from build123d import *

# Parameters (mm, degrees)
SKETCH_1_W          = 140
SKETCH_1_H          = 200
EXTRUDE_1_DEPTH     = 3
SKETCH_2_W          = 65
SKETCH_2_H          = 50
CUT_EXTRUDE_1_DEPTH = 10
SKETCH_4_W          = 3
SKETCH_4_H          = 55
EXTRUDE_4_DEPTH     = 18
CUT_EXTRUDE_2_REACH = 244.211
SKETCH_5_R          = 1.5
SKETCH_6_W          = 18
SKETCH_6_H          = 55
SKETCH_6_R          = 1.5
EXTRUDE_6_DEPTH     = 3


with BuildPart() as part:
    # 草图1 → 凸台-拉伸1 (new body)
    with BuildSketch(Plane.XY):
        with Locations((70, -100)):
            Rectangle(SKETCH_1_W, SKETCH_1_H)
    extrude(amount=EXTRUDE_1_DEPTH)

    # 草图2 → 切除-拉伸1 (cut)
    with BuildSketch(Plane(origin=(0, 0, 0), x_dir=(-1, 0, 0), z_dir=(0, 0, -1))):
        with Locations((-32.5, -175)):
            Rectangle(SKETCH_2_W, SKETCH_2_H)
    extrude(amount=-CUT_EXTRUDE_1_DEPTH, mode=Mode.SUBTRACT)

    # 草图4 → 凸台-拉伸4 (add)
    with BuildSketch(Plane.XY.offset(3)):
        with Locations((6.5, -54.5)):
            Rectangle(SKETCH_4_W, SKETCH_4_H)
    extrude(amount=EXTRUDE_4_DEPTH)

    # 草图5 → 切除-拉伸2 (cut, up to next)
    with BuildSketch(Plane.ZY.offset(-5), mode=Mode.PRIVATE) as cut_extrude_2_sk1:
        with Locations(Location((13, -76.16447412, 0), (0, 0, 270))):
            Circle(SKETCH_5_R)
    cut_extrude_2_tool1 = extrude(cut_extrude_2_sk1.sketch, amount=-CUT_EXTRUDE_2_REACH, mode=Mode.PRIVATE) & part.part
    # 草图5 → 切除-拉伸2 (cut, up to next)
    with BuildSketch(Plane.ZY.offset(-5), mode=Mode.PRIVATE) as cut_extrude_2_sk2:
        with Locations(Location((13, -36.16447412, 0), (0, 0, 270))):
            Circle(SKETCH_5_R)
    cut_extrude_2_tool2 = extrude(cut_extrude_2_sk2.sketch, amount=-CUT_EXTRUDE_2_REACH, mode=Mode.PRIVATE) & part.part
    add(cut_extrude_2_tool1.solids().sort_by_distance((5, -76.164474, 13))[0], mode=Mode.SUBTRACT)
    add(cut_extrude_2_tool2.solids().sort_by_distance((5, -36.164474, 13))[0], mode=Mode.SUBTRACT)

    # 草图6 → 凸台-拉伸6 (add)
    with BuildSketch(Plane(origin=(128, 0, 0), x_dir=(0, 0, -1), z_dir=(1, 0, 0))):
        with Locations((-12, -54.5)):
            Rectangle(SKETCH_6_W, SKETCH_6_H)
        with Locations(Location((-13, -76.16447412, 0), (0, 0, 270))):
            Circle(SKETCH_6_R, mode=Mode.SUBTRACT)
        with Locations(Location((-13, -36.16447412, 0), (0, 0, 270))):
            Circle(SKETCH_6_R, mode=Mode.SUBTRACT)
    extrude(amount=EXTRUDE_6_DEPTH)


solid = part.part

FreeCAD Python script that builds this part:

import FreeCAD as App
import Part
import Sketcher
from FreeCAD import Vector

doc = App.newDocument("Part")
body = doc.addObject("PartDesign::Body", "Body")

# Sketch on XY plane
sketch1 = body.newObject("Sketcher::SketchObject", "Sketch")
sketch1.AttachmentSupport = (doc.getObject("XY_Plane"), [""])
sketch1.MapMode = "FlatFace"
sketch1.addGeometry(Part.LineSegment(Vector(0, 0, 0), Vector(0, -200, 0)), False)
sketch1.addGeometry(Part.LineSegment(Vector(0, -200, 0), Vector(140, -200, 0)), False)
sketch1.addGeometry(Part.LineSegment(Vector(140, -200, 0), Vector(140, 0, 0)), False)
sketch1.addGeometry(Part.LineSegment(Vector(140, 0, 0), Vector(0, 0, 0)), False)
sketch1.addConstraint(Sketcher.Constraint("Coincident", 0, 2, 1, 1))
sketch1.addConstraint(Sketcher.Constraint("Coincident", 1, 2, 2, 1))
sketch1.addConstraint(Sketcher.Constraint("Coincident", 2, 2, 3, 1))
sketch1.addConstraint(Sketcher.Constraint("Coincident", 3, 2, 0, 1))
sketch1.addConstraint(Sketcher.Constraint("Vertical", 0))
sketch1.addConstraint(Sketcher.Constraint("Horizontal", 1))
sketch1.addConstraint(Sketcher.Constraint("Vertical", 2))
sketch1.addConstraint(Sketcher.Constraint("Horizontal", 3))
sketch1.addConstraint(Sketcher.Constraint("Coincident", 3, 2, -1, 1))
sketch1.addConstraint(Sketcher.Constraint("DistanceX", 1, 1, 1, 2, 140.0))
sketch1.addConstraint(Sketcher.Constraint("DistanceY", 0, 2, 0, 1, 200.0))
pad1 = body.newObject("PartDesign::Pad", "Pad")
pad1.Profile = sketch1
pad1.Length = 3

# Sketch on XY plane
sketch2 = body.newObject("Sketcher::SketchObject", "Sketch001")
sketch2.AttachmentSupport = (doc.getObject("XY_Plane"), [""])
sketch2.MapMode = "FlatFace"
sketch2.addGeometry(Part.LineSegment(Vector(65, -150, 0), Vector(65, -200, 0)), False)
sketch2.addGeometry(Part.LineSegment(Vector(65, -200, 0), Vector(0, -200, 0)), False)
sketch2.addGeometry(Part.LineSegment(Vector(0, -200, 0), Vector(0, -150, 0)), False)
sketch2.addGeometry(Part.LineSegment(Vector(0, -150, 0), Vector(65, -150, 0)), False)
sketch2.addConstraint(Sketcher.Constraint("Coincident", 0, 2, 1, 1))
sketch2.addConstraint(Sketcher.Constraint("Coincident", 1, 2, 2, 1))
sketch2.addConstraint(Sketcher.Constraint("Coincident", 2, 2, 3, 1))
sketch2.addConstraint(Sketcher.Constraint("Coincident", 3, 2, 0, 1))
sketch2.addConstraint(Sketcher.Constraint("Vertical", 0))
sketch2.addConstraint(Sketcher.Constraint("Horizontal", 1))
sketch2.addConstraint(Sketcher.Constraint("Vertical", 2))
sketch2.addConstraint(Sketcher.Constraint("Horizontal", 3))
sketch2.addConstraint(Sketcher.Constraint("PointOnObject", 1, 2, -2))
sketch2.addConstraint(Sketcher.Constraint("DistanceX", 1, 2, 1, 1, 65.0))
sketch2.addConstraint(Sketcher.Constraint("DistanceY", 0, 2, 0, 1, 50.0))
sketch2.addConstraint(Sketcher.Constraint("DistanceY", 0, 2, -1, 1, 200.0))
pocket1 = body.newObject("PartDesign::Pocket", "Pocket")
pocket1.Profile = sketch2
pocket1.Length = 10
pocket1.Reversed = True

# Sketch on XY plane
sketch3 = body.newObject("Sketcher::SketchObject", "Sketch002")
sketch3.AttachmentSupport = (doc.getObject("XY_Plane"), [""])
sketch3.MapMode = "FlatFace"
sketch3.AttachmentOffset = App.Placement(Vector(0, 0, 3), App.Rotation())
sketch3.addGeometry(Part.LineSegment(Vector(5, -27, 0), Vector(5, -82, 0)), False)
sketch3.addGeometry(Part.LineSegment(Vector(5, -82, 0), Vector(8, -82, 0)), False)
sketch3.addGeometry(Part.LineSegment(Vector(8, -82, 0), Vector(8, -27, 0)), False)
sketch3.addGeometry(Part.LineSegment(Vector(8, -27, 0), Vector(5, -27, 0)), False)
sketch3.addConstraint(Sketcher.Constraint("Coincident", 0, 2, 1, 1))
sketch3.addConstraint(Sketcher.Constraint("Coincident", 1, 2, 2, 1))
sketch3.addConstraint(Sketcher.Constraint("Coincident", 2, 2, 3, 1))
sketch3.addConstraint(Sketcher.Constraint("Coincident", 3, 2, 0, 1))
sketch3.addConstraint(Sketcher.Constraint("Vertical", 0))
sketch3.addConstraint(Sketcher.Constraint("Horizontal", 1))
sketch3.addConstraint(Sketcher.Constraint("Vertical", 2))
sketch3.addConstraint(Sketcher.Constraint("Horizontal", 3))
sketch3.addConstraint(Sketcher.Constraint("DistanceX", 1, 1, 1, 2, 3.0))
sketch3.addConstraint(Sketcher.Constraint("DistanceY", 0, 2, 0, 1, 55.0))
sketch3.addConstraint(Sketcher.Constraint("DistanceX", -1, 1, 0, 2, 5.0))
sketch3.addConstraint(Sketcher.Constraint("DistanceY", 0, 2, -1, 1, 82.0))
pad2 = body.newObject("PartDesign::Pad", "Pad001")
pad2.Profile = sketch3
pad2.Length = 18

# Sketch on YZ plane
sketch4 = body.newObject("Sketcher::SketchObject", "Sketch003")
sketch4.AttachmentSupport = (doc.getObject("YZ_Plane"), [""])
sketch4.MapMode = "FlatFace"
sketch4.AttachmentOffset = App.Placement(Vector(0, 0, 5), App.Rotation())
sketch4.addGeometry(Part.Circle(Vector(-76.2, 13, 0), Vector(0, 0, 1), 1.5), False)
sketch4.addConstraint(Sketcher.Constraint("Diameter", 0, 3.0))
sketch4.addConstraint(Sketcher.Constraint("DistanceY", -1, 1, 0, 3, 13.0))
sketch4.addConstraint(Sketcher.Constraint("DistanceX", 0, 3, -1, 1, 76.164474))
pocket2 = body.newObject("PartDesign::Pocket", "Pocket001")
pocket2.Profile = sketch4
pocket2.Type = "UpToFirst"
pocket2.Reversed = True

# Sketch on YZ plane
sketch5 = body.newObject("Sketcher::SketchObject", "Sketch004")
sketch5.AttachmentSupport = (doc.getObject("YZ_Plane"), [""])
sketch5.MapMode = "FlatFace"
sketch5.AttachmentOffset = App.Placement(Vector(0, 0, 5), App.Rotation())
sketch5.addGeometry(Part.Circle(Vector(-36.2, 13, 0), Vector(0, 0, 1), 1.5), False)
sketch5.addConstraint(Sketcher.Constraint("Diameter", 0, 3.0))
sketch5.addConstraint(Sketcher.Constraint("DistanceY", -1, 1, 0, 3, 13.0))
sketch5.addConstraint(Sketcher.Constraint("DistanceX", 0, 3, -1, 1, 36.164474))
pocket3 = body.newObject("PartDesign::Pocket", "Pocket002")
pocket3.Profile = sketch5
pocket3.Type = "UpToFirst"
pocket3.Reversed = True

# Sketch on YZ plane
sketch6 = body.newObject("Sketcher::SketchObject", "Sketch005")
sketch6.AttachmentSupport = (doc.getObject("YZ_Plane"), [""])
sketch6.MapMode = "FlatFace"
sketch6.AttachmentOffset = App.Placement(Vector(0, 0, 128), App.Rotation())
sketch6.addGeometry(Part.LineSegment(Vector(-27, 21, 0), Vector(-82, 21, 0)), False)
sketch6.addGeometry(Part.LineSegment(Vector(-82, 21, 0), Vector(-82, 3, 0)), False)
sketch6.addGeometry(Part.LineSegment(Vector(-82, 3, 0), Vector(-27, 3, 0)), False)
sketch6.addGeometry(Part.LineSegment(Vector(-27, 3, 0), Vector(-27, 21, 0)), False)
sketch6.addGeometry(Part.Circle(Vector(-76.2, 13, 0), Vector(0, 0, 1), 1.5), False)
sketch6.addGeometry(Part.Circle(Vector(-36.2, 13, 0), Vector(0, 0, 1), 1.5), False)
sketch6.addConstraint(Sketcher.Constraint("Coincident", 0, 2, 1, 1))
sketch6.addConstraint(Sketcher.Constraint("Coincident", 1, 2, 2, 1))
sketch6.addConstraint(Sketcher.Constraint("Coincident", 2, 2, 3, 1))
sketch6.addConstraint(Sketcher.Constraint("Coincident", 3, 2, 0, 1))
sketch6.addConstraint(Sketcher.Constraint("Horizontal", 0))
sketch6.addConstraint(Sketcher.Constraint("Vertical", 1))
sketch6.addConstraint(Sketcher.Constraint("Horizontal", 2))
sketch6.addConstraint(Sketcher.Constraint("Vertical", 3))
sketch6.addConstraint(Sketcher.Constraint("Equal", 4, 5))
sketch6.addConstraint(Sketcher.Constraint("Horizontal", 4, 3, 5, 3))
sketch6.addConstraint(Sketcher.Constraint("Diameter", 4, 3.0))
sketch6.addConstraint(Sketcher.Constraint("DistanceX", 0, 2, 0, 1, 55.0))
sketch6.addConstraint(Sketcher.Constraint("DistanceY", 1, 2, 1, 1, 18.0))
sketch6.addConstraint(Sketcher.Constraint("DistanceY", -1, 1, 4, 3, 13.0))
sketch6.addConstraint(Sketcher.Constraint("DistanceX", 0, 2, -1, 1, 82.0))
sketch6.addConstraint(Sketcher.Constraint("DistanceY", -1, 1, 0, 2, 21.0))
sketch6.addConstraint(Sketcher.Constraint("DistanceX", 4, 3, 5, 3, 40.0))
sketch6.addConstraint(Sketcher.Constraint("DistanceX", 4, 3, -1, 1, 76.164474))
pad3 = body.newObject("PartDesign::Pad", "Pad002")
pad3.Profile = sketch6
pad3.Length = 3

doc.recompute()
